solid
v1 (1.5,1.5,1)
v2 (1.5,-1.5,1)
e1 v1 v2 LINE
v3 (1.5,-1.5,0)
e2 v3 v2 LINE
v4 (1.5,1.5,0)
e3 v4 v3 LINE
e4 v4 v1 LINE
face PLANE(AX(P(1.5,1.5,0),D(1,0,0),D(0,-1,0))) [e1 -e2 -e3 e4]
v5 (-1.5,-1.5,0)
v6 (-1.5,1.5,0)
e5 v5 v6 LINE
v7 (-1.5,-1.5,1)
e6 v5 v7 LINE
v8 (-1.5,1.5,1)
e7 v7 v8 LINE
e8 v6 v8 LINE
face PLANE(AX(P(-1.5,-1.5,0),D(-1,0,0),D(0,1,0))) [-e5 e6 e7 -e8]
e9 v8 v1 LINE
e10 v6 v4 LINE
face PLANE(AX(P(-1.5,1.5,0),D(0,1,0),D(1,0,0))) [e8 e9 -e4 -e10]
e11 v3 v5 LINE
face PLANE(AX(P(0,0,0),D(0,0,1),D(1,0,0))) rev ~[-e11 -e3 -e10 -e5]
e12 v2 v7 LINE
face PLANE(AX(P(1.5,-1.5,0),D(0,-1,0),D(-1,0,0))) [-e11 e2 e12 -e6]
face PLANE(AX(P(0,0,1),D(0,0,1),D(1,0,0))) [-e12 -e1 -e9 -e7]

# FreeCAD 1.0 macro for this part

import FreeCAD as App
import Part
import Sketcher

V = App.Vector
Q = App.Units.Quantity

doc = App.newDocument("Part")
body = doc.addObject("PartDesign::Body", "Body")

# Sketch on XY plane
sketch1 = body.newObject("Sketcher::SketchObject", "Sketch")
sketch1.AttachmentSupport = (doc.getObject("XY_Plane"), [""])
sketch1.MapMode = "FlatFace"
sketch1.addGeometry(Part.LineSegment(V(-1.5, 1.5, 0), V(-1.5, -1.5, 0)), False)
sketch1.addGeometry(Part.LineSegment(V(-1.5, -1.5, 0), V(1.5, -1.5, 0)), False)
sketch1.addGeometry(Part.LineSegment(V(1.5, -1.5, 0), V(1.5, 1.5, 0)), False)
sketch1.addGeometry(Part.LineSegment(V(1.5, 1.5, 0), V(-1.5, 1.5, 0)), False)
sketch1.addConstraint(Sketcher.Constraint("Coincident", 0, 2, 1, 1))
sketch1.addConstraint(Sketcher.Constraint("Coincident", 1, 2, 2, 1))
sketch1.addConstraint(Sketcher.Constraint("Coincident", 2, 2, 3, 1))
sketch1.addConstraint(Sketcher.Constraint("Coincident", 3, 2, 0, 1))
sketch1.addConstraint(Sketcher.Constraint("Vertical", 0))
sketch1.addConstraint(Sketcher.Constraint("Horizontal", 1))
sketch1.addConstraint(Sketcher.Constraint("Vertical", 2))
sketch1.addConstraint(Sketcher.Constraint("Horizontal", 3))
sketch1.addConstraint(Sketcher.Constraint("Symmetric", 0, 2, 2, 2, -1, 1))
sketch1.addConstraint(Sketcher.Constraint("Equal", 3, 0))
sketch1.addConstraint(Sketcher.Constraint("DistanceX", 1, 1, 1, 2, Q("3 mm")))
pad1 = body.newObject("PartDesign::Pad", "Pad")
pad1.Profile = sketch1
pad1.Length = 1

doc.recompute()
